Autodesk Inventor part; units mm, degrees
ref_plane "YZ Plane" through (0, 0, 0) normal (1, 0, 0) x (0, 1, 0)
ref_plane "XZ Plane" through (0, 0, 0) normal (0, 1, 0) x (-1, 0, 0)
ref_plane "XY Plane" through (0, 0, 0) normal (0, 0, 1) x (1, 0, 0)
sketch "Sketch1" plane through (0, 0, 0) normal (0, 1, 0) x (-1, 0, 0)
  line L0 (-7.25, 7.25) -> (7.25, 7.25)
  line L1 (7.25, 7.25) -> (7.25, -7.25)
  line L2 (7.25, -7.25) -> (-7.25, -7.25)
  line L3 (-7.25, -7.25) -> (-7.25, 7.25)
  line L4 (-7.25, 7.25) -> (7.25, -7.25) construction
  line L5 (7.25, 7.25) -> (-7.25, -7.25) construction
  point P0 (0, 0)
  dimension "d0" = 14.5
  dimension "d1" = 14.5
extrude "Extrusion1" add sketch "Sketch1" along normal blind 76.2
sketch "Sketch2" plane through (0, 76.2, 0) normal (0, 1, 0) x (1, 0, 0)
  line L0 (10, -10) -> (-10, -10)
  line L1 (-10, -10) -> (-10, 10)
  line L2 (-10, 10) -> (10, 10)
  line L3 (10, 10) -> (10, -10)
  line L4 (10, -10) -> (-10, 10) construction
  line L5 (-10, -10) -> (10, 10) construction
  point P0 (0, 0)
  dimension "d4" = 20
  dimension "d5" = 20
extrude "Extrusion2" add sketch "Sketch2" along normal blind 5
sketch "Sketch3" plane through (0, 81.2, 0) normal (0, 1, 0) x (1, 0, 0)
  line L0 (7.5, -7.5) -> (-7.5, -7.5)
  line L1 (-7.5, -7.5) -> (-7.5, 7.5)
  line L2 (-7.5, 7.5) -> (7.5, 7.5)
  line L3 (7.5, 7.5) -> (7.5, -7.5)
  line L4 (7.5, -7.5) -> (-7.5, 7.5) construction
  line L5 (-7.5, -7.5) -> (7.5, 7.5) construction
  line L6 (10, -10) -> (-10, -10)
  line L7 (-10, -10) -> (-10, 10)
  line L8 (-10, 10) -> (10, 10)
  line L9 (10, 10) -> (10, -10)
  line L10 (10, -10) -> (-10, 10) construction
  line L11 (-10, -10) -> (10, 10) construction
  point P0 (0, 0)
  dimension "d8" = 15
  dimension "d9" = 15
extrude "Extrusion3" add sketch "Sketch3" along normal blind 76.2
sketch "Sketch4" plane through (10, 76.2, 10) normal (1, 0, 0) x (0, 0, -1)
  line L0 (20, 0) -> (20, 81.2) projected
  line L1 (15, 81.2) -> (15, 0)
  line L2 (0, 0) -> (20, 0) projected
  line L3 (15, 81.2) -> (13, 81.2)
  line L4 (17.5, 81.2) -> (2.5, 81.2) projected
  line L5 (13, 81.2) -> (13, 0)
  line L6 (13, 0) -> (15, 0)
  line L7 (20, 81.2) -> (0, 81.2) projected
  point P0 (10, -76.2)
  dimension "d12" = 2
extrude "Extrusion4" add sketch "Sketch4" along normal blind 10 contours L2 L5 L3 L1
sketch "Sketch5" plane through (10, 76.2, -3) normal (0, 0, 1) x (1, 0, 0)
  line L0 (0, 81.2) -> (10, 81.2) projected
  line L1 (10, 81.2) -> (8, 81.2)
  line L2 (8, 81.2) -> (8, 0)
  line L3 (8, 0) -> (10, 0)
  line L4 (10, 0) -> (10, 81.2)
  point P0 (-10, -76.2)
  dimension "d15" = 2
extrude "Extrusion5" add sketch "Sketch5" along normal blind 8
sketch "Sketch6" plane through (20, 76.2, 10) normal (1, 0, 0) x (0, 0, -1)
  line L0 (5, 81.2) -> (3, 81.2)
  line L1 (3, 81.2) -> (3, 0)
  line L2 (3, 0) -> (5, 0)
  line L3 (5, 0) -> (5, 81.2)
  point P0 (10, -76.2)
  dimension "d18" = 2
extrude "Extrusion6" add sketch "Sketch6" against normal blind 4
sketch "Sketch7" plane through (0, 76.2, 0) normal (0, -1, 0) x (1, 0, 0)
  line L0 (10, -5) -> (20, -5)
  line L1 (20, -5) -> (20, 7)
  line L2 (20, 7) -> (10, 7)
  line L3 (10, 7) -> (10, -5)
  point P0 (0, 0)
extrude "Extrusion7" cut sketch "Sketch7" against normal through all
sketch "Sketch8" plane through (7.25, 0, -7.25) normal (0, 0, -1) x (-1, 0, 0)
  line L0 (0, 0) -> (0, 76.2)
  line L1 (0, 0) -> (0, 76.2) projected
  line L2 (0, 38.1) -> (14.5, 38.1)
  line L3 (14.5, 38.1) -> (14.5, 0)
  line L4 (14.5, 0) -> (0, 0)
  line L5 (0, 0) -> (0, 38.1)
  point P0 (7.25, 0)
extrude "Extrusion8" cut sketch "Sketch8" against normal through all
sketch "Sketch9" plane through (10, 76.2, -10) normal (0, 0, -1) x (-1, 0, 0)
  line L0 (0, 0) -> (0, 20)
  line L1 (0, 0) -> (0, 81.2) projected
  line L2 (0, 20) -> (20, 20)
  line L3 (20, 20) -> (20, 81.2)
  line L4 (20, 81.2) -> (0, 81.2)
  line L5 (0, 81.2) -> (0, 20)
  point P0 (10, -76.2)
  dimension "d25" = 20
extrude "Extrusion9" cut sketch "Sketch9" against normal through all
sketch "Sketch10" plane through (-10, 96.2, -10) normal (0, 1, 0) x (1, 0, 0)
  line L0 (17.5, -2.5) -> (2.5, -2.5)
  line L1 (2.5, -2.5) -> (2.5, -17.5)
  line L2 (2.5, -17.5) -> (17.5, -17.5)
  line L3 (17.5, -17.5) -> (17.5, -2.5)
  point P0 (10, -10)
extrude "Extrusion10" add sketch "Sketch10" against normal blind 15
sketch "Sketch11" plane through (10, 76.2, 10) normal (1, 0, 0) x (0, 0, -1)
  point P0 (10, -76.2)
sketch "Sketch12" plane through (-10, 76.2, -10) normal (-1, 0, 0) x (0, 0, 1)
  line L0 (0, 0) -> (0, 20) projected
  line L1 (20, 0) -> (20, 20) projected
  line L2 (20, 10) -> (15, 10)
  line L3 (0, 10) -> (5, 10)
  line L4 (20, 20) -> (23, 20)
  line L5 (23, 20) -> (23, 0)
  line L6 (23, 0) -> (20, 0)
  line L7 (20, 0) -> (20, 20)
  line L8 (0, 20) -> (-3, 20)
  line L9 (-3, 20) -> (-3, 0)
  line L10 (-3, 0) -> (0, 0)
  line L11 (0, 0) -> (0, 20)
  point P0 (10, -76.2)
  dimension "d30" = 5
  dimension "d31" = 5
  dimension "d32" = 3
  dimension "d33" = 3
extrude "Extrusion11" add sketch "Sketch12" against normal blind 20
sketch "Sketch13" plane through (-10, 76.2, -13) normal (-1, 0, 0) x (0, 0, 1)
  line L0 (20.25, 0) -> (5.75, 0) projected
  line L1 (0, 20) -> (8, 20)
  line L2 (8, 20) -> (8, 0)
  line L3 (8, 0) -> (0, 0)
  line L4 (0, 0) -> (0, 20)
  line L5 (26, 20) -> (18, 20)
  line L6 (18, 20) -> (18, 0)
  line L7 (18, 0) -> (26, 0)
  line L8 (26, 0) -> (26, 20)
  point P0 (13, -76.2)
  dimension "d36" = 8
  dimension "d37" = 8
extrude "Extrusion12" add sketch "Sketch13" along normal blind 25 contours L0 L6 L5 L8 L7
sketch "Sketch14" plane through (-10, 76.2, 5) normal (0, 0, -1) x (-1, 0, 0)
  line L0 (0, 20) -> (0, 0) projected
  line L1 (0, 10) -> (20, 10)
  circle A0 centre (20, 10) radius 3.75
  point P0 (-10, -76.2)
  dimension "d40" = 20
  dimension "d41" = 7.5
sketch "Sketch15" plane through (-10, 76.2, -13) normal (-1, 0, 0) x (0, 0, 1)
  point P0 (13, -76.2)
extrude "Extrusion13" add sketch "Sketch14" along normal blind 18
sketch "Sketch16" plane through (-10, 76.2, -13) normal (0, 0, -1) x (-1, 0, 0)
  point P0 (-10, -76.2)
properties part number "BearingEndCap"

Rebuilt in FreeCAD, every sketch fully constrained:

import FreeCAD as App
import Part
import Sketcher
from FreeCAD import Vector

doc = App.newDocument("Part")
body = doc.addObject("PartDesign::Body", "Body")

# Sketch on XZ plane
sketch1 = body.newObject("Sketcher::SketchObject", "Sketch")
sketch1.AttachmentSupport = (doc.getObject("XZ_Plane"), [""])
sketch1.MapMode = "FlatFace"
sketch1.addGeometry([
    Part.LineSegment(Vector(-7.25, 7.25, 0), Vector(7.25, 7.25, 0)),
    Part.LineSegment(Vector(7.25, 7.25, 0), Vector(7.25, -7.25, 0)),
    Part.LineSegment(Vector(7.25, -7.25, 0), Vector(-7.25, -7.25, 0)),
    Part.LineSegment(Vector(-7.25, -7.25, 0), Vector(-7.25, 7.25, 0)),
], False)
sketch1.addConstraint([
    Sketcher.Constraint("Coincident", 0, 2, 1, 1),
    Sketcher.Constraint("Coincident", 1, 2, 2, 1),
    Sketcher.Constraint("Coincident", 2, 2, 3, 1),
    Sketcher.Constraint("Coincident", 3, 2, 0, 1),
    Sketcher.Constraint("Horizontal", 0),
    Sketcher.Constraint("Vertical", 1),
    Sketcher.Constraint("Horizontal", 2),
    Sketcher.Constraint("Vertical", 3),
    Sketcher.Constraint("Symmetric", 0, 2, 2, 2, -1, 1),
    Sketcher.Constraint("Equal", 2, 1),
    Sketcher.Constraint("DistanceX", 0, 1, 0, 2, 14.5),
])
pad1 = body.newObject("PartDesign::Pad", "Pad")
pad1.Profile = sketch1
pad1.Length = 76.2
pad1.Reversed = True

# Sketch on XZ plane
sketch2 = body.newObject("Sketcher::SketchObject", "Sketch001")
sketch2.AttachmentSupport = (doc.getObject("XZ_Plane"), [""])
sketch2.MapMode = "FlatFace"
sketch2.AttachmentOffset = App.Placement(Vector(0, 0, -76.2), App.Rotation())
sketch2.addGeometry([
    Part.LineSegment(Vector(-10, 10, 0), Vector(10, 10, 0)),
    Part.LineSegment(Vector(10, 10, 0), Vector(10, -10, 0)),
    Part.LineSegment(Vector(10, -10, 0), Vector(-10, -10, 0)),
    Part.LineSegment(Vector(-10, -10, 0), Vector(-10, 10, 0)),
], False)
sketch2.addConstraint([
    Sketcher.Constraint("Coincident", 0, 2, 1, 1),
    Sketcher.Constraint("Coincident", 1, 2, 2, 1),
    Sketcher.Constraint("Coincident", 2, 2, 3, 1),
    Sketcher.Constraint("Coincident", 3, 2, 0, 1),
    Sketcher.Constraint("Horizontal", 0),
    Sketcher.Constraint("Vertical", 1),
    Sketcher.Constraint("Horizontal", 2),
    Sketcher.Constraint("Vertical", 3),
    Sketcher.Constraint("Symmetric", 0, 2, 2, 2, -1, 1),
    Sketcher.Constraint("Equal", 2, 1),
    Sketcher.Constraint("DistanceX", 0, 1, 0, 2, 20.0),
])
pad2 = body.newObject("PartDesign::Pad", "Pad001")
pad2.Profile = sketch2
pad2.Length = 5
pad2.Reversed = True

# Sketch on XZ plane
sketch3 = body.newObject("Sketcher::SketchObject", "Sketch002")
sketch3.AttachmentSupport = (doc.getObject("XZ_Plane"), [""])
sketch3.MapMode = "FlatFace"
sketch3.AttachmentOffset = App.Placement(Vector(0, 0, -81.2), App.Rotation())
sketch3.addGeometry([
    Part.LineSegment(Vector(-10, 10, 0), Vector(10, 10, 0)),  # 0
    Part.LineSegment(Vector(10, 10, 0), Vector(10, -10, 0)),  # 1
    Part.LineSegment(Vector(10, -10, 0), Vector(-10, -10, 0)),  # 2
    Part.LineSegment(Vector(-10, -10, 0), Vector(-10, 10, 0)),  # 3
    Part.LineSegment(Vector(7.5, -7.5, 0), Vector(7.5, 7.5, 0)),  # 4
    Part.LineSegment(Vector(7.5, 7.5, 0), Vector(-7.5, 7.5, 0)),  # 5
    Part.LineSegment(Vector(-7.5, 7.5, 0), Vector(-7.5, -7.5, 0)),  # 6
    Part.LineSegment(Vector(-7.5, -7.5, 0), Vector(7.5, -7.5, 0)),  # 7
], False)
sketch3.addConstraint([
    Sketcher.Constraint("Coincident", 0, 2, 1, 1),
    Sketcher.Constraint("Coincident", 1, 2, 2, 1),
    Sketcher.Constraint("Coincident", 2, 2, 3, 1),
    Sketcher.Constraint("Coincident", 3, 2, 0, 1),
    Sketcher.Constraint("Coincident", 4, 2, 5, 1),
    Sketcher.Constraint("Coincident", 5, 2, 6, 1),
    Sketcher.Constraint("Coincident", 6, 2, 7, 1),
    Sketcher.Constraint("Coincident", 7, 2, 4, 1),
    Sketcher.Constraint("Horizontal", 0),
    Sketcher.Constraint("Vertical", 1),
    Sketcher.Constraint("Horizontal", 2),
    Sketcher.Constraint("Vertical", 3),
    Sketcher.Constraint("Vertical", 4),
    Sketcher.Constraint("Horizontal", 5),
    Sketcher.Constraint("Vertical", 6),
    Sketcher.Constraint("Horizontal", 7),
    Sketcher.Constraint("Symmetric", 0, 2, 2, 2, -1, 1),
    Sketcher.Constraint("Symmetric", 4, 2, 6, 2, -1, 1),
    Sketcher.Constraint("Equal", 2, 1),
    Sketcher.Constraint("Equal", 7, 4),
    Sketcher.Constraint("DistanceX", 5, 2, 5, 1, 15.0),
    Sketcher.Constraint("DistanceX", 0, 1, 0, 2, 20.0),
])
pad3 = body.newObject("PartDesign::Pad", "Pad002")
pad3.Profile = sketch3
pad3.Length = 76.2
pad3.Reversed = True

# Sketch on YZ plane
sketch4 = body.newObject("Sketcher::SketchObject", "Sketch003")
sketch4.AttachmentSupport = (doc.getObject("YZ_Plane"), [""])
sketch4.MapMode = "FlatFace"
sketch4.AttachmentOffset = App.Placement(Vector(0, 0, 10), App.Rotation())
sketch4.addGeometry([
    Part.LineSegment(Vector(76.2, -3, 0), Vector(76.2, -5, 0)),
    Part.LineSegment(Vector(76.2, -5, 0), Vector(157.4, -5, 0)),
    Part.LineSegment(Vector(157.4, -5, 0), Vector(157.4, -3, 0)),
    Part.LineSegment(Vector(157.4, -3, 0), Vector(76.2, -3, 0)),
], False)
sketch4.addConstraint([
    Sketcher.Constraint("Coincident", 0, 2, 1, 1),
    Sketcher.Constraint("Coincident", 1, 2, 2, 1),
    Sketcher.Constraint("Coincident", 2, 2, 3, 1),
    Sketcher.Constraint("Coincident", 3, 2, 0, 1),
    Sketcher.Constraint("Vertical", 0),
    Sketcher.Constraint("Horizontal", 1),
    Sketcher.Constraint("Vertical", 2),
    Sketcher.Constraint("Horizontal", 3),
    Sketcher.Constraint("DistanceY", 0, 2, 0, 1, 2.0),
    Sketcher.Constraint("DistanceX", 1, 1, 1, 2, 81.2),
    Sketcher.Constraint("DistanceY", 0, 2, -1, 1, 5.0),
    Sketcher.Constraint("DistanceX", -1, 1, 0, 2, 76.2),
])
pad4 = body.newObject("PartDesign::Pad", "Pad003")
pad4.Profile = sketch4
pad4.Length = 10

# Sketch on XY plane
sketch5 = body.newObject("Sketcher::SketchObject", "Sketch004")
sketch5.AttachmentSupport = (doc.getObject("XY_Plane"), [""])
sketch5.MapMode = "FlatFace"
sketch5.AttachmentOffset = App.Placement(Vector(0, 0, -3), App.Rotation())
sketch5.addGeometry([
    Part.LineSegment(Vector(20, 157.4, 0), Vector(18, 157.4, 0)),
    Part.LineSegment(Vector(18, 157.4, 0), Vector(18, 76.2, 0)),
    Part.LineSegment(Vector(18, 76.2, 0), Vector(20, 76.2, 0)),
    Part.LineSegment(Vector(20, 76.2, 0), Vector(20, 157.4, 0)),
], False)
sketch5.addConstraint([
    Sketcher.Constraint("Coincident", 0, 2, 1, 1),
    Sketcher.Constraint("Coincident", 1, 2, 2, 1),
    Sketcher.Constraint("Coincident", 2, 2, 3, 1),
    Sketcher.Constraint("Coincident", 3, 2, 0, 1),
    Sketcher.Constraint("Horizontal", 0),
    Sketcher.Constraint("Vertical", 1),
    Sketcher.Constraint("Horizontal", 2),
    Sketcher.Constraint("Vertical", 3),
    Sketcher.Constraint("DistanceX", 0, 2, 0, 1, 2.0),
    Sketcher.Constraint("DistanceY", 1, 2, 1, 1, 81.2),
    Sketcher.Constraint("DistanceX", -1, 1, 0, 2, 18.0),
    Sketcher.Constraint("DistanceY", -1, 1, 0, 2, 157.4),
])
pad5 = body.newObject("PartDesign::Pad", "Pad004")
pad5.Profile = sketch5
pad5.Length = 8

# Sketch on YZ plane
sketch6 = body.newObject("Sketcher::SketchObject", "Sketch005")
sketch6.AttachmentSupport = (doc.getObject("YZ_Plane"), [""])
sketch6.MapMode = "FlatFace"
sketch6.AttachmentOffset = App.Placement(Vector(0, 0, 20), App.Rotation())
sketch6.addGeometry([
    Part.LineSegment(Vector(76.2, 5, 0), Vector(157.4, 5, 0)),
    Part.LineSegment(Vector(157.4, 5, 0), Vector(157.4, 7, 0)),
    Part.LineSegment(Vector(157.4, 7, 0), Vector(76.2, 7, 0)),
    Part.LineSegment(Vector(76.2, 7, 0), Vector(76.2, 5, 0)),
], False)
sketch6.addConstraint([
    Sketcher.Constraint("Coincident", 0, 2, 1, 1),
    Sketcher.Constraint("Coincident", 1, 2, 2, 1),
    Sketcher.Constraint("Coincident", 2, 2, 3, 1),
    Sketcher.Constraint("Coincident", 3, 2, 0, 1),
    Sketcher.Constraint("Horizontal", 0),
    Sketcher.Constraint("Vertical", 1),
    Sketcher.Constraint("Horizontal", 2),
    Sketcher.Constraint("Vertical", 3),
    Sketcher.Constraint("DistanceY", 1, 1, 1, 2, 2.0),
    Sketcher.Constraint("DistanceX", 0, 1, 0, 2, 81.2),
    Sketcher.Constraint("DistanceY", -1, 1, 0, 2, 5.0),
    Sketcher.Constraint("DistanceX", -1, 1, 0, 2, 157.4),
])
pad6 = body.newObject("PartDesign::Pad", "Pad005")
pad6.Profile = sketch6
pad6.Length = 4
pad6.Reversed = True

# Sketch on XZ plane
sketch7 = body.newObject("Sketcher::SketchObject", "Sketch006")
sketch7.AttachmentSupport = (doc.getObject("XZ_Plane"), [""])
sketch7.MapMode = "FlatFace"
sketch7.AttachmentOffset = App.Placement(Vector(0, 0, -76.2), App.Rotation())
sketch7.addGeometry([
    Part.LineSegment(Vector(10, 7, 0), Vector(10, -5, 0)),
    Part.LineSegment(Vector(10, -5, 0), Vector(20, -5, 0)),
    Part.LineSegment(Vector(20, -5, 0), Vector(20, 7, 0)),
    Part.LineSegment(Vector(20, 7, 0), Vector(10, 7, 0)),
], False)
sketch7.addConstraint([
    Sketcher.Constraint("Coincident", 0, 2, 1, 1),
    Sketcher.Constraint("Coincident", 1, 2, 2, 1),
    Sketcher.Constraint("Coincident", 2, 2, 3, 1),
    Sketcher.Constraint("Coincident", 3, 2, 0, 1),
    Sketcher.Constraint("Vertical", 0),
    Sketcher.Constraint("Horizontal", 1),
    Sketcher.Constraint("Vertical", 2),
    Sketcher.Constraint("Horizontal", 3),
    Sketcher.Constraint("DistanceX", 1, 1, 1, 2, 10.0),
    Sketcher.Constraint("DistanceY", 0, 2, 0, 1, 12.0),
    Sketcher.Constraint("DistanceX", -1, 1, 0, 2, 10.0),
    Sketcher.Constraint("DistanceY", 0, 2, -1, 1, 5.0),
])
pocket1 = body.newObject("PartDesign::Pocket", "Pocket")
pocket1.Profile = sketch7
pocket1.Type = "ThroughAll"

# Sketch on XY plane
sketch8 = body.newObject("Sketcher::SketchObject", "Sketch007")
sketch8.AttachmentSupport = (doc.getObject("XY_Plane"), [""])
sketch8.MapMode = "FlatFace"
sketch8.AttachmentOffset = App.Placement(Vector(0, 0, -7.25), App.Rotation())
sketch8.addGeometry([
    Part.LineSegment(Vector(7.25, 38.1, 0), Vector(7.25, 0, 0)),
    Part.LineSegment(Vector(7.25, 0, 0), Vector(-7.25, 0, 0)),
    Part.LineSegment(Vector(-7.25, 0, 0), Vector(-7.25, 38.1, 0)),
    Part.LineSegment(Vector(-7.25, 38.1, 0), Vector(7.25, 38.1, 0)),
], False)
sketch8.addConstraint([
    Sketcher.Constraint("Coincident", 0, 2, 1, 1),
    Sketcher.Constraint("Coincident", 1, 2, 2, 1),
    Sketcher.Constraint("Coincident", 2, 2, 3, 1),
    Sketcher.Constraint("Coincident", 3, 2, 0, 1),
    Sketcher.Constraint("Vertical", 0),
    Sketcher.Constraint("Horizontal", 1),
    Sketcher.Constraint("Vertical", 2),
    Sketcher.Constraint("Horizontal", 3),
    Sketcher.Constraint("Symmetric", 0, 2, 1, 2, -1, 1),
    Sketcher.Constraint("DistanceX", 1, 2, 1, 1, 14.5),
    Sketcher.Constraint("DistanceY", 0, 2, 0, 1, 38.1),
])
pocket2 = body.newObject("PartDesign::Pocket", "Pocket001")
pocket2.Profile = sketch8
pocket2.Type = "ThroughAll"
pocket2.Reversed = True

# Sketch on XY plane
sketch9 = body.newObject("Sketcher::SketchObject", "Sketch008")
sketch9.AttachmentSupport = (doc.getObject("XY_Plane"), [""])
sketch9.MapMode = "FlatFace"
sketch9.AttachmentOffset = App.Placement(Vector(0, 0, -10), App.Rotation())
sketch9.addGeometry([
    Part.LineSegment(Vector(10, 157.4, 0), Vector(10, 96.2, 0)),
    Part.LineSegment(Vector(10, 96.2, 0), Vector(-10, 96.2, 0)),
    Part.LineSegment(Vector(-10, 96.2, 0), Vector(-10, 157.4, 0)),
    Part.LineSegment(Vector(-10, 157.4, 0), Vector(10, 157.4, 0)),
], False)
sketch9.addConstraint([
    Sketcher.Constraint("Coincident", 0, 2, 1, 1),
    Sketcher.Constraint("Coincident", 1, 2, 2, 1),
    Sketcher.Constraint("Coincident", 2, 2, 3, 1),
    Sketcher.Constraint("Coincident", 3, 2, 0, 1),
    Sketcher.Constraint("Vertical", 0),
    Sketcher.Constraint("Horizontal", 1),
    Sketcher.Constraint("Vertical", 2),
    Sketcher.Constraint("Horizontal", 3),
    Sketcher.Constraint("DistanceX", 1, 2, 1, 1, 20.0),
    Sketcher.Constraint("DistanceY", 0, 2, 0, 1, 61.2),
    Sketcher.Constraint("DistanceX", -1, 1, 0, 2, 10.0),
    Sketcher.Constraint("DistanceY", -1, 1, 0, 2, 96.2),
])
pocket3 = body.newObject("PartDesign::Pocket", "Pocket002")
pocket3.Profile = sketch9
pocket3.Type = "ThroughAll"
pocket3.Reversed = True

# Sketch on XZ plane
sketch10 = body.newObject("Sketcher::SketchObject", "Sketch009")
sketch10.AttachmentSupport = (doc.getObject("XZ_Plane"), [""])
sketch10.MapMode = "FlatFace"
sketch10.AttachmentOffset = App.Placement(Vector(0, 0, -96.2), App.Rotation())
sketch10.addGeometry([
    Part.LineSegment(Vector(7.5, 7.5, 0), Vector(7.5, -7.5, 0)),
    Part.LineSegment(Vector(7.5, -7.5, 0), Vector(-7.5, -7.5, 0)),
    Part.LineSegment(Vector(-7.5, -7.5, 0), Vector(-7.5, 7.5, 0)),
    Part.LineSegment(Vector(-7.5, 7.5, 0), Vector(7.5, 7.5, 0)),
], False)
sketch10.addConstraint([
    Sketcher.Constraint("Coincident", 0, 2, 1, 1),
    Sketcher.Constraint("Coincident", 1, 2, 2, 1),
    Sketcher.Constraint("Coincident", 2, 2, 3, 1),
    Sketcher.Constraint("Coincident", 3, 2, 0, 1),
    Sketcher.Constraint("Vertical", 0),
    Sketcher.Constraint("Horizontal", 1),
    Sketcher.Constraint("Vertical", 2),
    Sketcher.Constraint("Horizontal", 3),
    Sketcher.Constraint("Symmetric", 0, 2, 2, 2, -1, 1),
    Sketcher.Constraint("Equal", 3, 0),
    Sketcher.Constraint("DistanceX", 1, 2, 1, 1, 15.0),
])
pad7 = body.newObject("PartDesign::Pad", "Pad006")
pad7.Profile = sketch10
pad7.Length = 15

# Sketch on YZ plane
sketch11 = body.newObject("Sketcher::SketchObject", "Sketch010")
sketch11.AttachmentSupport = (doc.getObject("YZ_Plane"), [""])
sketch11.MapMode = "FlatFace"
sketch11.AttachmentOffset = App.Placement(Vector(0, 0, -10), App.Rotation())
sketch11.addGeometry([
    Part.LineSegment(Vector(76.2, -13, 0), Vector(76.2, -10, 0)),  # 0
    Part.LineSegment(Vector(76.2, -10, 0), Vector(96.2, -10, 0)),  # 1
    Part.LineSegment(Vector(96.2, -10, 0), Vector(96.2, -13, 0)),  # 2
    Part.LineSegment(Vector(96.2, -13, 0), Vector(76.2, -13, 0)),  # 3
    Part.LineSegment(Vector(96.2, 10, 0), Vector(76.2, 10, 0)),  # 4
    Part.LineSegment(Vector(76.2, 10, 0), Vector(76.2, 13, 0)),  # 5
    Part.LineSegment(Vector(76.2, 13, 0), Vector(96.2, 13, 0)),  # 6
    Part.LineSegment(Vector(96.2, 13, 0), Vector(96.2, 10, 0)),  # 7
], False)
sketch11.addConstraint([
    Sketcher.Constraint("Coincident", 0, 2, 1, 1),
    Sketcher.Constraint("Coincident", 1, 2, 2, 1),
    Sketcher.Constraint("Coincident", 2, 2, 3, 1),
    Sketcher.Constraint("Coincident", 3, 2, 0, 1),
    Sketcher.Constraint("Coincident", 4, 2, 5, 1),
    Sketcher.Constraint("Coincident", 5, 2, 6, 1),
    Sketcher.Constraint("Coincident", 6, 2, 7, 1),
    Sketcher.Constraint("Coincident", 7, 2, 4, 1),
    Sketcher.Constraint("Vertical", 0),
    Sketcher.Constraint("Horizontal", 1),
    Sketcher.Constraint("Vertical", 2),
    Sketcher.Constraint("Horizontal", 3),
    Sketcher.Constraint("Horizontal", 4),
    Sketcher.Constraint("Vertical", 5),
    Sketcher.Constraint("Horizontal", 6),
    Sketcher.Constraint("Vertical", 7),
    Sketcher.Constraint("Symmetric", 0, 2, 4, 2, -1),
    Sketcher.Constraint("Symmetric", 2, 2, 6, 2, -1),
    Sketcher.Constraint("DistanceY", 0, 1, 0, 2, 3.0),
    Sketcher.Constraint("DistanceX", 1, 1, 1, 2, 20.0),
    Sketcher.Constraint("DistanceY", 0, 2, -1, 1, 10.0),
    Sketcher.Constraint("DistanceX", -1, 1, 0, 2, 76.2),
])
pad8 = body.newObject("PartDesign::Pad", "Pad007")
pad8.Profile = sketch11
pad8.Length = 20

# Sketch on YZ plane
sketch12 = body.newObject("Sketcher::SketchObject", "Sketch011")
sketch12.AttachmentSupport = (doc.getObject("YZ_Plane"), [""])
sketch12.MapMode = "FlatFace"
sketch12.AttachmentOffset = App.Placement(Vector(0, 0, -10), App.Rotation())
sketch12.addGeometry([
    Part.LineSegment(Vector(76.2, 5, 0), Vector(76.2, 13, 0)),
    Part.LineSegment(Vector(76.2, 13, 0), Vector(96.2, 13, 0)),
    Part.LineSegment(Vector(96.2, 13, 0), Vector(96.2, 5, 0)),
    Part.LineSegment(Vector(96.2, 5, 0), Vector(76.2, 5, 0)),
], False)
sketch12.addConstraint([
    Sketcher.Constraint("Coincident", 0, 2, 1, 1),
    Sketcher.Constraint("Coincident", 1, 2, 2, 1),
    Sketcher.Constraint("Coincident", 2, 2, 3, 1),
    Sketcher.Constraint("Coincident", 3, 2, 0, 1),
    Sketcher.Constraint("Vertical", 0),
    Sketcher.Constraint("Horizontal", 1),
    Sketcher.Constraint("Vertical", 2),
    Sketcher.Constraint("Horizontal", 3),
    Sketcher.Constraint("DistanceY", 0, 1, 0, 2, 8.0),
    Sketcher.Constraint("DistanceX", 1, 1, 1, 2, 20.0),
    Sketcher.Constraint("DistanceY", -1, 1, 0, 2, 13.0),
    Sketcher.Constraint("DistanceX", -1, 1, 0, 2, 76.2),
])
pad9 = body.newObject("PartDesign::Pad", "Pad008")
pad9.Profile = sketch12
pad9.Length = 25
pad9.Reversed = True

# Sketch on XY plane
sketch13 = body.newObject("Sketcher::SketchObject", "Sketch012")
sketch13.AttachmentSupport = (doc.getObject("XY_Plane"), [""])
sketch13.MapMode = "FlatFace"
sketch13.AttachmentOffset = App.Placement(Vector(0, 0, 5), App.Rotation())
sketch13.addGeometry(Part.Circle(Vector(-30, 86.2, 0), Vector(0, 0, 1), 3.75), False)
sketch13.addConstraint([
    Sketcher.Constraint("Diameter", 0, 7.5),
    Sketcher.Constraint("DistanceX", 0, 3, -1, 1, 30.0),
    Sketcher.Constraint("DistanceY", -1, 1, 0, 3, 86.2),
])
pad10 = body.newObject("PartDesign::Pad", "Pad009")
pad10.Profile = sketch13
pad10.Length = 18
pad10.Reversed = True

doc.recompute()
